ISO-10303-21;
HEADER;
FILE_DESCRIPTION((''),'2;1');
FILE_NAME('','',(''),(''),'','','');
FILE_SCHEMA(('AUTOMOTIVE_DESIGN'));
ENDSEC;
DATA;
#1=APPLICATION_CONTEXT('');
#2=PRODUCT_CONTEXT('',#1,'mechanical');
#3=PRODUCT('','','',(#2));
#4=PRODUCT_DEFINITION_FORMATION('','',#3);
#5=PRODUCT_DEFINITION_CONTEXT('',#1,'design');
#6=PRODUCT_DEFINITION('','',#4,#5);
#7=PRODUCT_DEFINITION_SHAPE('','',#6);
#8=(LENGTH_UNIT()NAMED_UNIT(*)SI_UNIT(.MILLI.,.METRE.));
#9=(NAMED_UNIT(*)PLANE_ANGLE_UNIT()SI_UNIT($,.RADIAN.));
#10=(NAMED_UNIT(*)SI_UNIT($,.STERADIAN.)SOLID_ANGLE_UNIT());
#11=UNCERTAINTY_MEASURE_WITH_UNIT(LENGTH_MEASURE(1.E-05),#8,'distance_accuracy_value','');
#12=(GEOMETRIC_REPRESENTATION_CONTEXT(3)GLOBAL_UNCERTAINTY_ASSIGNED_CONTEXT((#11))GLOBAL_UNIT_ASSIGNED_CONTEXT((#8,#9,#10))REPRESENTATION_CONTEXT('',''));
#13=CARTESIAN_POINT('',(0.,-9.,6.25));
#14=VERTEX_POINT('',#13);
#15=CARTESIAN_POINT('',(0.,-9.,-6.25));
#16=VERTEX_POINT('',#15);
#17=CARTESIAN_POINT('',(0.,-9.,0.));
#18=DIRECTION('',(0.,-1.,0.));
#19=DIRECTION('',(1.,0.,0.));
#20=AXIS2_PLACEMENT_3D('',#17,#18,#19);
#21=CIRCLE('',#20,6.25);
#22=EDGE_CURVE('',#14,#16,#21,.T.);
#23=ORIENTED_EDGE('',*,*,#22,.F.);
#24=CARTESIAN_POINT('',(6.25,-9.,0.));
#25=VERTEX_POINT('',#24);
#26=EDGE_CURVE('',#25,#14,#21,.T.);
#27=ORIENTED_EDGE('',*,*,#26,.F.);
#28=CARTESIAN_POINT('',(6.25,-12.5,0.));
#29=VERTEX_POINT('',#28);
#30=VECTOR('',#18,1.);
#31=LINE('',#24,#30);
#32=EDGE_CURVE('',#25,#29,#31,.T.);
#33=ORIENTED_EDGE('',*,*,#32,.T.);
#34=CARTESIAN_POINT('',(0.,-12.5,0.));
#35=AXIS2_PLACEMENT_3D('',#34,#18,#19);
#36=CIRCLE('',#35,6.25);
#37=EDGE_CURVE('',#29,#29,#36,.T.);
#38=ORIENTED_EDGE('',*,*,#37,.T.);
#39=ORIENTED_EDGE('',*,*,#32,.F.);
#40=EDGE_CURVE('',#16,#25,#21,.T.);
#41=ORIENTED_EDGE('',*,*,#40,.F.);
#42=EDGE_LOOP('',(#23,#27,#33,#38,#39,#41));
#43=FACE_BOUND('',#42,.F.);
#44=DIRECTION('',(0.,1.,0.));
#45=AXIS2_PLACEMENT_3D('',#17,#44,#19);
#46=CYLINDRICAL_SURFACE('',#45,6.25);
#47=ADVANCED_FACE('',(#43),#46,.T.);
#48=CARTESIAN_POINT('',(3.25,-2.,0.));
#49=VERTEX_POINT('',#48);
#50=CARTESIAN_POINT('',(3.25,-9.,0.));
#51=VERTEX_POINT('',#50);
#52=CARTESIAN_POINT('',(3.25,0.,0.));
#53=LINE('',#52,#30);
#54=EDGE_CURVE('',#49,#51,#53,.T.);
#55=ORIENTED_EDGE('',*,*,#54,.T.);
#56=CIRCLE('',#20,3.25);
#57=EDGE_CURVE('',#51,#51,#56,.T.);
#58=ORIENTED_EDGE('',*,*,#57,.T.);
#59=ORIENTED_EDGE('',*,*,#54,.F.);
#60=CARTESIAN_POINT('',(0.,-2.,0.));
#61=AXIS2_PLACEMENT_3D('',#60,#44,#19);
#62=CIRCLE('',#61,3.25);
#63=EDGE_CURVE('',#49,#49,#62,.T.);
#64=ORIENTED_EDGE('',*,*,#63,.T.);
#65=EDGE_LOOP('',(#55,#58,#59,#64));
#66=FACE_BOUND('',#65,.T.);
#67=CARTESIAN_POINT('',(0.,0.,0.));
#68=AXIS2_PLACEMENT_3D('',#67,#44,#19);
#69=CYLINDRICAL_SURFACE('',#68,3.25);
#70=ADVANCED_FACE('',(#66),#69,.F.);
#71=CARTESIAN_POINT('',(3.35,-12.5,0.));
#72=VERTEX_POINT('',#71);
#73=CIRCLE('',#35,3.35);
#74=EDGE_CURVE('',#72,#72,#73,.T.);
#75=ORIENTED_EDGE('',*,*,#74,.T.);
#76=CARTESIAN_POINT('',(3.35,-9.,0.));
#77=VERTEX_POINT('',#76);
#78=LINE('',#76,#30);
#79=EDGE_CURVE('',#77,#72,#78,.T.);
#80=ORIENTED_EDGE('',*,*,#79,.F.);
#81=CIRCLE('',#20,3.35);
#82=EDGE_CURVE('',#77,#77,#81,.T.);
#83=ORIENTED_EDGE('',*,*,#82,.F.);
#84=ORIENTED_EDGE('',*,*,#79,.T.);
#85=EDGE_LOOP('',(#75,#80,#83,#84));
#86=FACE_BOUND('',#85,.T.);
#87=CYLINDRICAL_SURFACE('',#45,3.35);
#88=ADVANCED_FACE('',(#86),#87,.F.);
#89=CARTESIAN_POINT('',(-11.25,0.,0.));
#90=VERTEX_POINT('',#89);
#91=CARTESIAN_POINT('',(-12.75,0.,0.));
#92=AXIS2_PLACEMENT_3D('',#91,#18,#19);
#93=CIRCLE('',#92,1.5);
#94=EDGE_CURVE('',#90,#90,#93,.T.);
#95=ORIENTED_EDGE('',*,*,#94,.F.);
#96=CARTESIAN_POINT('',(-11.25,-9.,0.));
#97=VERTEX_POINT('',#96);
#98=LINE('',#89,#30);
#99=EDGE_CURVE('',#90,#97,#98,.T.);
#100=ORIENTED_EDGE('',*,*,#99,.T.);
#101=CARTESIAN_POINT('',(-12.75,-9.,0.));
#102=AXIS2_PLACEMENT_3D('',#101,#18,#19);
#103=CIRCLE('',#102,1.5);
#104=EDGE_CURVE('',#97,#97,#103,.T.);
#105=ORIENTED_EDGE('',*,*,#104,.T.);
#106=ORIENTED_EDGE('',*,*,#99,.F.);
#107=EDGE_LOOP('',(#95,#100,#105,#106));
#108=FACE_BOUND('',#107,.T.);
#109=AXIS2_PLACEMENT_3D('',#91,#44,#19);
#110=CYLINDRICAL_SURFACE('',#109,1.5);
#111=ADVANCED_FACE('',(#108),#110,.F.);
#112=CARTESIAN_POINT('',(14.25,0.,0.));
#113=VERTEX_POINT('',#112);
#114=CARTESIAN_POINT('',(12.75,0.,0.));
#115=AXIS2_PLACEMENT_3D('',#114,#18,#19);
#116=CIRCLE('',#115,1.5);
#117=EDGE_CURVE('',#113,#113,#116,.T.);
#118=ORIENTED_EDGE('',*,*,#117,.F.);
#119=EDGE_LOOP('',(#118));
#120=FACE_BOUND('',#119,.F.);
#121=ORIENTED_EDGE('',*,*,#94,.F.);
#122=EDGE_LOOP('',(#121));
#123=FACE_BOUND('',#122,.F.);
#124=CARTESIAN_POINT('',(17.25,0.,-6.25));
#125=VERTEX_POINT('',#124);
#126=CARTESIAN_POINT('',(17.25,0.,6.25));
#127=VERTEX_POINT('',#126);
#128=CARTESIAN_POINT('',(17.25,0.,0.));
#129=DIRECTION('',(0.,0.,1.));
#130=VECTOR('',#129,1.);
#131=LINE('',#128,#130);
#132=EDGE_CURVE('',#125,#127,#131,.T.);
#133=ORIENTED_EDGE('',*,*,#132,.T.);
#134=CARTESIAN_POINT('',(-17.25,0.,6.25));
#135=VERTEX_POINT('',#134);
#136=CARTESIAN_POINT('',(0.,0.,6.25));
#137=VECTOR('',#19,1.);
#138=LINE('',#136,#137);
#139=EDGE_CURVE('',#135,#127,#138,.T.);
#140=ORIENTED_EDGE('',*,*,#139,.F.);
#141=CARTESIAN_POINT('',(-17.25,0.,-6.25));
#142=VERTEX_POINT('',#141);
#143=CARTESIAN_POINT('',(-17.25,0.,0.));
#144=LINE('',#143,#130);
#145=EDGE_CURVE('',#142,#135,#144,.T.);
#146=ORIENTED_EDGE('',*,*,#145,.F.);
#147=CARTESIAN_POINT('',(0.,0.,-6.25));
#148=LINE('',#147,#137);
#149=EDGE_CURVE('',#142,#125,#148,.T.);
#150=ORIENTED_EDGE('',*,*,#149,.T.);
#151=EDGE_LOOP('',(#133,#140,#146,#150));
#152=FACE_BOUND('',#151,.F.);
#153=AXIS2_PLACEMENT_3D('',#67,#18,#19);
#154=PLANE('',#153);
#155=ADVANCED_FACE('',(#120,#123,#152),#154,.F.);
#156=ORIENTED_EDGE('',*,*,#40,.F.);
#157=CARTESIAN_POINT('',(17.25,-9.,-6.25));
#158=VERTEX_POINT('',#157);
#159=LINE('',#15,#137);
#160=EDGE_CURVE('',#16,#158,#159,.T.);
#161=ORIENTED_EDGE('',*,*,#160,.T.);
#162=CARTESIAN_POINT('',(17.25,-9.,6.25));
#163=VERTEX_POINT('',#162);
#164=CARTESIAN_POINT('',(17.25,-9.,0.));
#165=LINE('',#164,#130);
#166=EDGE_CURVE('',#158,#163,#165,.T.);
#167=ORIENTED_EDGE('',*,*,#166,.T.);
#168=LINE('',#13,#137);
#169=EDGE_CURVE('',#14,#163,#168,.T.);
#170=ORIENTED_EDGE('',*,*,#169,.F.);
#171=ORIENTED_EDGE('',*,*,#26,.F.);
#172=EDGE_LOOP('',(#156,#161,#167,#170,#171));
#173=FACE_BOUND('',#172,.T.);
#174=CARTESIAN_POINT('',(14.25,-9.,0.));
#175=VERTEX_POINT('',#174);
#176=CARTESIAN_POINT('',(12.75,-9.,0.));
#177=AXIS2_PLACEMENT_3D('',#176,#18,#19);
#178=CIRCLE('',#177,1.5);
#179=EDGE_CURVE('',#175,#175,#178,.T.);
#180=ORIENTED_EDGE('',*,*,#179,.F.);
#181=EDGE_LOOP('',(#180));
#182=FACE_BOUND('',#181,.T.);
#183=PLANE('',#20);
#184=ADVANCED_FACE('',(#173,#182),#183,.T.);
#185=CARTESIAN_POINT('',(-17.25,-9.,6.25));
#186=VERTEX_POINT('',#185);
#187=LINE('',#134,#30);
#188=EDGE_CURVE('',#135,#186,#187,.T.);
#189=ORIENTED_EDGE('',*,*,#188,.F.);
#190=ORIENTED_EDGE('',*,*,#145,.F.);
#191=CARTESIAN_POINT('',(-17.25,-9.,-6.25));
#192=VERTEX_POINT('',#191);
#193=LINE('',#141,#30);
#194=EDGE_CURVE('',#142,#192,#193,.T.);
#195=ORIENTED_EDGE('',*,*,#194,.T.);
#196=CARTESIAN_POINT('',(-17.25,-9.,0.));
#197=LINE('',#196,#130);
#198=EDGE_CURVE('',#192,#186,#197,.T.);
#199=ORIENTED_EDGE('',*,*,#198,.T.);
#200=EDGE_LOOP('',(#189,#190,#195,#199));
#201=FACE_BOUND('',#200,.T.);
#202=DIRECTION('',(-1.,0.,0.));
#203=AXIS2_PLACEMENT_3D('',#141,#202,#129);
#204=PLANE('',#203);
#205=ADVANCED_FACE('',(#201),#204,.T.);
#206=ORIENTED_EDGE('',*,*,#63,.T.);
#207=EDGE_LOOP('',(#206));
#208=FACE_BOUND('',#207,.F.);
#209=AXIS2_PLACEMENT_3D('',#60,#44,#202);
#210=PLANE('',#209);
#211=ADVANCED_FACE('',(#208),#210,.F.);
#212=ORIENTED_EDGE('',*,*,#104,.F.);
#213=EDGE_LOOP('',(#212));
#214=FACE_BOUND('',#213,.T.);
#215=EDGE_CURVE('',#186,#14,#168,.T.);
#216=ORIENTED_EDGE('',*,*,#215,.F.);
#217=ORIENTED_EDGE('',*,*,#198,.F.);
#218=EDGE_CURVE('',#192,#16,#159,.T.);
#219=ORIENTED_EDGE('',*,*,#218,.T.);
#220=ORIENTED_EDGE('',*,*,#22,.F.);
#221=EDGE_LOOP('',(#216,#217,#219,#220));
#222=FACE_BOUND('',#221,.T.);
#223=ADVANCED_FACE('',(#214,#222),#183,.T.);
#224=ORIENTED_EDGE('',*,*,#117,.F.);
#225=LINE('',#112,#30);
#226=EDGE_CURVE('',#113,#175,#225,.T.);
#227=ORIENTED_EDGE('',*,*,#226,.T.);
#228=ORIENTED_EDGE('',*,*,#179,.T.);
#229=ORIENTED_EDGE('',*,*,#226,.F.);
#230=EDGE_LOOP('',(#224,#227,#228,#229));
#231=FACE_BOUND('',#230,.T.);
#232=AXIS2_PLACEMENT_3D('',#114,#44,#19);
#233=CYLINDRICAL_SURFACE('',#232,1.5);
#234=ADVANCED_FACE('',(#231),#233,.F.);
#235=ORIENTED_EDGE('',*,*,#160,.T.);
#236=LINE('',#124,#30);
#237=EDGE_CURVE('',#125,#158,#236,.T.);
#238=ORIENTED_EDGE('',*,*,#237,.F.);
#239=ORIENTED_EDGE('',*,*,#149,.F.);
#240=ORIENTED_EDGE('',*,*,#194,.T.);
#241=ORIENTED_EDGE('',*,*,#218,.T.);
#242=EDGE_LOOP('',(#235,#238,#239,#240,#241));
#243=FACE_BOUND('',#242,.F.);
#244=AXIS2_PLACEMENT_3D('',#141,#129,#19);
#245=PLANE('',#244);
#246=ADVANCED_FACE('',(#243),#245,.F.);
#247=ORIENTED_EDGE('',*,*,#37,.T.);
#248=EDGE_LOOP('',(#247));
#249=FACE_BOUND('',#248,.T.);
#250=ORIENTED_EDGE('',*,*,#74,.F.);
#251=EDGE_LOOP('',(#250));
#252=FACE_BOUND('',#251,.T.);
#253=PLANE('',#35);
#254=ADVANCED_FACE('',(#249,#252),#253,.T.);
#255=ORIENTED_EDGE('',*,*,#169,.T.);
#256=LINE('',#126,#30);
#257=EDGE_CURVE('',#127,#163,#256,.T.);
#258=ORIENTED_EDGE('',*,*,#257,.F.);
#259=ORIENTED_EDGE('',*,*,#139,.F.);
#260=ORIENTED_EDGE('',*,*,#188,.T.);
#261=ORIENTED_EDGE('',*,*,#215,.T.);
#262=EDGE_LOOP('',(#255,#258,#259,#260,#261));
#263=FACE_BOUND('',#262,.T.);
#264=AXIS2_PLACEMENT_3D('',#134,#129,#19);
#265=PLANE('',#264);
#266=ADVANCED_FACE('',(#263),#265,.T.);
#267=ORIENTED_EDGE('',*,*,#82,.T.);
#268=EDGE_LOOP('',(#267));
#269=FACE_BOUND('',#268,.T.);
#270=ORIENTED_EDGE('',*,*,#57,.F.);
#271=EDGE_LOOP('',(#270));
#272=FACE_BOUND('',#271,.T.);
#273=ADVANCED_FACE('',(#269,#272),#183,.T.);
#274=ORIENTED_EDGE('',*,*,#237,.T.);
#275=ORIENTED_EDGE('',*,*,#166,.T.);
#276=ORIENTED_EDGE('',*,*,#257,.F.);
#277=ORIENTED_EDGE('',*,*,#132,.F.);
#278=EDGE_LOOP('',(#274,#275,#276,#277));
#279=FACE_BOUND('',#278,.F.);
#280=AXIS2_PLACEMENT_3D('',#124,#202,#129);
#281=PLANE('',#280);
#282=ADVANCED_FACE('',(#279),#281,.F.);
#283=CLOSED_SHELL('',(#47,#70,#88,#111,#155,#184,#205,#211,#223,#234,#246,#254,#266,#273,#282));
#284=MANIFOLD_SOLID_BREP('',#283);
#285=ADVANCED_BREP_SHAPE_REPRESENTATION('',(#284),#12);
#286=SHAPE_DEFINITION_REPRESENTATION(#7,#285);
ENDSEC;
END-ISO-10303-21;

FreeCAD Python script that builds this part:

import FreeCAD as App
import Part
import Sketcher

V = App.Vector

doc = App.newDocument("Part")
body = doc.addObject("PartDesign::Body", "Body")

sketch1 = body.newObject("Sketcher::SketchObject", "Sketch")
sketch1.AttachmentSupport = (doc.getObject("XZ_Plane"), [""])
sketch1.MapMode = "FlatFace"
sketch1.addGeometry(Part.LineSegment(V(-17.2, 6.2, 0), V(-17.2, -6.2, 0)), False)
sketch1.addGeometry(Part.LineSegment(V(-17.2, -6.2, 0), V(17.2, -6.2, 0)), False)
sketch1.addGeometry(Part.LineSegment(V(17.2, -6.2, 0), V(17.2, 6.2, 0)), False)
sketch1.addGeometry(Part.LineSegment(V(17.2, 6.2, 0), V(-17.2, 6.2, 0)), False)
sketch1.addGeometry(Part.Circle(V(-12.8, 0, 0), V(0, 0, 1), 1.5), False)
sketch1.addGeometry(Part.Circle(V(0, 0, 0), V(0, 0, 1), 3.2), False)
sketch1.addGeometry(Part.Circle(V(12.8, 0, 0), V(0, 0, 1), 1.5), False)
sketch1.addConstraint(Sketcher.Constraint("Coincident", 0, 2, 1, 1))
sketch1.addConstraint(Sketcher.Constraint("Coincident", 1, 2, 2, 1))
sketch1.addConstraint(Sketcher.Constraint("Coincident", 2, 2, 3, 1))
sketch1.addConstraint(Sketcher.Constraint("Coincident", 3, 2, 0, 1))
sketch1.addConstraint(Sketcher.Constraint("Vertical", 0))
sketch1.addConstraint(Sketcher.Constraint("Horizontal", 1))
sketch1.addConstraint(Sketcher.Constraint("Vertical", 2))
sketch1.addConstraint(Sketcher.Constraint("Horizontal", 3))
sketch1.addConstraint(Sketcher.Constraint("Coincident", 5, 3, -1, 1))
sketch1.addConstraint(Sketcher.Constraint("Equal", 4, 6))
sketch1.addConstraint(Sketcher.Constraint("Symmetric", 4, 3, 6, 3, -1, 1))
sketch1.addConstraint(Sketcher.Constraint("Symmetric", 0, 2, 2, 2, -1, 1))
sketch1.addConstraint(Sketcher.Constraint("PointOnObject", 4, 3, -1))
sketch1.addConstraint(Sketcher.Constraint("Diameter", 4, 3.0))
sketch1.addConstraint(Sketcher.Constraint("Diameter", 5, 6.5))
sketch1.addConstraint(Sketcher.Constraint("DistanceX", 1, 1, 1, 2, 34.5))
sketch1.addConstraint(Sketcher.Constraint("DistanceY", 0, 2, 0, 1, 12.5))
sketch1.addConstraint(Sketcher.Constraint("DistanceX", 0, 2, 6, 3, 30.0))
pad1 = body.newObject("PartDesign::Pad", "Pad")
pad1.Profile = sketch1
pad1.Length = 9

sketch2 = body.newObject("Sketcher::SketchObject", "Sketch001")
sketch2.AttachmentSupport = (doc.getObject("XZ_Plane"), [""])
sketch2.MapMode = "FlatFace"
sketch2.AttachmentOffset = App.Placement(V(0, 0, 9), App.Rotation())
sketch2.addGeometry(Part.Circle(V(0, 0, 0), V(0, 0, 1), 6.2), False)
sketch2.addGeometry(Part.Circle(V(0, 0, 0), V(0, 0, 1), 3.4), False)
sketch2.addConstraint(Sketcher.Constraint("Coincident", 0, 3, -1, 1))
sketch2.addConstraint(Sketcher.Constraint("Coincident", 1, 3, -1, 1))
sketch2.addConstraint(Sketcher.Constraint("Diameter", 0, 12.5))
sketch2.addConstraint(Sketcher.Constraint("Diameter", 1, 6.7))
pad2 = body.newObject("PartDesign::Pad", "Pad001")
pad2.Profile = sketch2
pad2.Length = 3.5

sketch3 = body.newObject("Sketcher::SketchObject", "Sketch002")
sketch3.AttachmentSupport = (doc.getObject("XZ_Plane"), [""])
sketch3.MapMode = "FlatFace"
sketch3.addGeometry(Part.LineSegment(V(5, 4, 0), V(5, -4, 0)), False)
sketch3.addGeometry(Part.LineSegment(V(5, -4, 0), V(-5, -4, 0)), False)
sketch3.addGeometry(Part.LineSegment(V(-5, -4, 0), V(-5, 4, 0)), False)
sketch3.addGeometry(Part.LineSegment(V(-5, 4, 0), V(5, 4, 0)), False)
sketch3.addConstraint(Sketcher.Constraint("Coincident", 0, 2, 1, 1))
sketch3.addConstraint(Sketcher.Constraint("Coincident", 1, 2, 2, 1))
sketch3.addConstraint(Sketcher.Constraint("Coincident", 2, 2, 3, 1))
sketch3.addConstraint(Sketcher.Constraint("Coincident", 3, 2, 0, 1))
sketch3.addConstraint(Sketcher.Constraint("Vertical", 0))
sketch3.addConstraint(Sketcher.Constraint("Horizontal", 1))
sketch3.addConstraint(Sketcher.Constraint("Vertical", 2))
sketch3.addConstraint(Sketcher.Constraint("Horizontal", 3))
sketch3.addConstraint(Sketcher.Constraint("Symmetric", 0, 2, 2, 2, -1, 1))
sketch3.addConstraint(Sketcher.Constraint("DistanceX", 1, 2, 1, 1, 10.950644))
sketch3.addConstraint(Sketcher.Constraint("DistanceY", 0, 2, 0, 1, 8.111588))
pad3 = body.newObject("PartDesign::Pad", "Pad002")
pad3.Profile = sketch3
pad3.Length = 2

doc.recompute()
